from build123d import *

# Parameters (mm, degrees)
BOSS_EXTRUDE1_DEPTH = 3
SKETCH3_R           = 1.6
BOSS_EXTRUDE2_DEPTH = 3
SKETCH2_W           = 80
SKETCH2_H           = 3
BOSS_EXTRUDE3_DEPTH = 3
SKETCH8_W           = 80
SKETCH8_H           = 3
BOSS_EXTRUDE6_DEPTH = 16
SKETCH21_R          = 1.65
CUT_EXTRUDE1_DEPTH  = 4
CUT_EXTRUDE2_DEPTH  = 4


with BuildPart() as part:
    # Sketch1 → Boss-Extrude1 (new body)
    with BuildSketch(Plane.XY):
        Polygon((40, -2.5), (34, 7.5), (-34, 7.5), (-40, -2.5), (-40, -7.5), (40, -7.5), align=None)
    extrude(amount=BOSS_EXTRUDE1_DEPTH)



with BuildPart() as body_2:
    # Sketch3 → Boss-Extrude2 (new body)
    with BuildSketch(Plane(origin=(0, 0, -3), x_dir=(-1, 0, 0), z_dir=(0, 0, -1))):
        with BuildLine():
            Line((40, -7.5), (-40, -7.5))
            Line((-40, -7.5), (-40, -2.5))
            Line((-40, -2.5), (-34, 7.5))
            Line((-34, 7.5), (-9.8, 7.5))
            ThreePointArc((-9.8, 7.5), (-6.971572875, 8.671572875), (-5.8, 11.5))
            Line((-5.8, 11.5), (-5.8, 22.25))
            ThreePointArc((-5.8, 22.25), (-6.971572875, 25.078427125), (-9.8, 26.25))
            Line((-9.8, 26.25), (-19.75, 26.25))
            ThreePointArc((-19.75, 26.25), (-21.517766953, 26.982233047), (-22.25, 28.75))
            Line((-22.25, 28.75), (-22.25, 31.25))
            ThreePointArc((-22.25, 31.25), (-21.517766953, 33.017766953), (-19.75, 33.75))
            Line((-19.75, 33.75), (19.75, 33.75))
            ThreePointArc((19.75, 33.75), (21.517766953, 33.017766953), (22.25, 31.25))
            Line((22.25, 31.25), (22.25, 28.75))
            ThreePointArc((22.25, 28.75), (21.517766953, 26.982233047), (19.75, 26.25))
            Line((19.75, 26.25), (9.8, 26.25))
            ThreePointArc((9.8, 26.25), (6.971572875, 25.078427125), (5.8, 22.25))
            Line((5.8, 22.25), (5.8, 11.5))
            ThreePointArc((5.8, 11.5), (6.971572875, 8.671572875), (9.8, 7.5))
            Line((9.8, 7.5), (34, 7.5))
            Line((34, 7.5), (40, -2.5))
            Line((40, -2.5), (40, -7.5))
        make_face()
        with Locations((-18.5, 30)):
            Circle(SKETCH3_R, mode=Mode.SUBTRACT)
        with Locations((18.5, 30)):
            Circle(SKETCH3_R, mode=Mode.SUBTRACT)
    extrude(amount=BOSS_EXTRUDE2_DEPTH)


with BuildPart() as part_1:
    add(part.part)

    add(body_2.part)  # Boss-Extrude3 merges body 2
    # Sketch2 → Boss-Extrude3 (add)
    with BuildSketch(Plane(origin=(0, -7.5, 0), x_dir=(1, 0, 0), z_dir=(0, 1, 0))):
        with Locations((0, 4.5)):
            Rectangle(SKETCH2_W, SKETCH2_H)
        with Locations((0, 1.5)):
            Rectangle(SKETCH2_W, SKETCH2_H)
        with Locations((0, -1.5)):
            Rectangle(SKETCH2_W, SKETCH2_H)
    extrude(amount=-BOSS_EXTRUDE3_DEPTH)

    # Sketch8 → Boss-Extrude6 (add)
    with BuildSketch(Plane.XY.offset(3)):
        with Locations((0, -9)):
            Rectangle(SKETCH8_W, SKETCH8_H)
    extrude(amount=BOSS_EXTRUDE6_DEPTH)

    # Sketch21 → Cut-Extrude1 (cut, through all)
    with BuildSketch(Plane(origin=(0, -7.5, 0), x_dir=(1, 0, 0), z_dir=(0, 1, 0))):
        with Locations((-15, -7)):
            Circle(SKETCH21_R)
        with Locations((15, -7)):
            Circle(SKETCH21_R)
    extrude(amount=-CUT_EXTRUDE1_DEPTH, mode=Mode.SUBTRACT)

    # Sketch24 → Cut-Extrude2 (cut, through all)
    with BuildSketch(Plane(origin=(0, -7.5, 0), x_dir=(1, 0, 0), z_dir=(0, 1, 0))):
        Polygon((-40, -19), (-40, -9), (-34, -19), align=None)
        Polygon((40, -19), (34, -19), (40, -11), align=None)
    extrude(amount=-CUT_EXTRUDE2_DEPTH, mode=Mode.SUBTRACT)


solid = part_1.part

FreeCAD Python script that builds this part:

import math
import FreeCAD as App
import Part
import Sketcher
Q = App.Units.Quantity

doc = App.newDocument("Part")
params = doc.addObject("Spreadsheet::Sheet", "Params")
for row, (alias, value) in enumerate([
    ("sketch1_width", "68 mm"),
    ("sketch1_width2", "80 mm"),
    ("sketch1_height", "5 mm"),
    ("pad1_length", "3 mm"),
    ("sketch2_radius", "4 mm"),
    ("sketch2_diameter", "3.2 mm"),
    ("sketch2_radius2", "2.5 mm"),
    ("sketch2_width", "80 mm"),
    ("sketch2_height", "5 mm"),
    ("pad2_length", "3 mm"),
    ("sketch3_width", "80 mm"),
    ("sketch3_height", "9 mm"),
    ("pad3_length", "3 mm"),
    ("sketch4_width", "80 mm"),
    ("sketch4_height", "3 mm"),
    ("pad4_length", "16 mm"),
    ("sketch5_diameter", "3.3 mm"),
    ("sketch6_width", "6 mm"),
    ("sketch6_height", "10 mm"),
    ("sketch6_height2", "8 mm"),
], start=1):
    params.set(f"A{row}", alias)
    params.set(f"B{row}", "=" + value)
    params.setAlias(f"B{row}", alias)

body = doc.addObject("PartDesign::Body", "Body")

sketch1 = body.newObject("Sketcher::SketchObject", "Sketch")
sketch1.AttachmentSupport = (doc.getObject("XY_Plane"), [""])
sketch1.MapMode = "FlatFace"
sketch1.addGeometry(Part.LineSegment(App.Vector(40, -2, 0), App.Vector(34, 8, 0)), False)
sketch1.addGeometry(Part.LineSegment(App.Vector(34, 8, 0), App.Vector(-34, 8, 0)), False)
sketch1.addGeometry(Part.LineSegment(App.Vector(-34, 8, 0), App.Vector(-40, -2, 0)), False)
sketch1.addGeometry(Part.LineSegment(App.Vector(-40, -2, 0), App.Vector(-40, -8, 0)), False)
sketch1.addGeometry(Part.LineSegment(App.Vector(-40, -8, 0), App.Vector(40, -8, 0)), False)
sketch1.addGeometry(Part.LineSegment(App.Vector(40, -8, 0), App.Vector(40, -2, 0)), False)
sketch1.addConstraint(Sketcher.Constraint("Coincident", 0, 2, 1, 1))
sketch1.addConstraint(Sketcher.Constraint("Coincident", 1, 2, 2, 1))
sketch1.addConstraint(Sketcher.Constraint("Coincident", 2, 2, 3, 1))
sketch1.addConstraint(Sketcher.Constraint("Coincident", 3, 2, 4, 1))
sketch1.addConstraint(Sketcher.Constraint("Coincident", 4, 2, 5, 1))
sketch1.addConstraint(Sketcher.Constraint("Coincident", 5, 2, 0, 1))
sketch1.addConstraint(Sketcher.Constraint("Horizontal", 1))
sketch1.addConstraint(Sketcher.Constraint("Vertical", 3))
sketch1.addConstraint(Sketcher.Constraint("Horizontal", 4))
sketch1.addConstraint(Sketcher.Constraint("Vertical", 5))
sketch1.addConstraint(Sketcher.Constraint("Symmetric", 2, 2, 5, 2, -2))
sketch1.addConstraint(Sketcher.Constraint("Equal", 0, 2))
sketch1.addConstraint(Sketcher.Constraint("DistanceX", 1, 2, 1, 1, Q("68 mm")))
sketch1.addConstraint(Sketcher.Constraint("DistanceX", 4, 1, 4, 2, Q("80 mm")))
sketch1.addConstraint(Sketcher.Constraint("DistanceY", 3, 2, 3, 1, Q("5 mm")))
sketch1.addConstraint(Sketcher.Constraint("DistanceY", 2, 2, 1, 2, Q("10 mm")))
sketch1.addConstraint(Sketcher.Constraint("DistanceY", -1, 1, 0, 2, Q("7.5 mm")))
sketch1.setExpression("Constraints[12]", "Params.sketch1_width")
sketch1.setExpression("Constraints[13]", "Params.sketch1_width2")
sketch1.setExpression("Constraints[14]", "Params.sketch1_height")
pad1 = body.newObject("PartDesign::Pad", "Pad")
pad1.Profile = sketch1
pad1.setExpression("Length", "Params.pad1_length")
body2 = doc.addObject("PartDesign::Body", "Body001")

sketch2 = body2.newObject("Sketcher::SketchObject", "Sketch001")
sketch2.AttachmentSupport = (doc.getObject("XY_Plane001"), [""])
sketch2.MapMode = "FlatFace"
sketch2.AttachmentOffset = App.Placement(App.Vector(0, 0, -3), App.Rotation())
sketch2.addGeometry(Part.LineSegment(App.Vector(40, -7.5, 0), App.Vector(-40, -7.5, 0)), False)
sketch2.addGeometry(Part.LineSegment(App.Vector(-40, -7.5, 0), App.Vector(-40, -2.5, 0)), False)
sketch2.addGeometry(Part.LineSegment(App.Vector(-40, -2.5, 0), App.Vector(-34, 7.5, 0)), False)
sketch2.addGeometry(Part.LineSegment(App.Vector(-34, 7.5, 0), App.Vector(-9.8, 7.5, 0)), False)
sketch2.addGeometry(Part.ArcOfCircle(Part.Circle(App.Vector(-9.8, 11.5, 0), App.Vector(0, 0, 1), 4), math.radians(-90), math.radians(0)), False)
sketch2.addGeometry(Part.LineSegment(App.Vector(-5.8, 11.5, 0), App.Vector(-5.8, 22.2, 0)), False)
sketch2.addGeometry(Part.ArcOfCircle(Part.Circle(App.Vector(-9.8, 22.3, 0), App.Vector(0, 0, 1), 4), math.radians(0), math.radians(90)), False)
sketch2.addGeometry(Part.LineSegment(App.Vector(-9.8, 26.2, 0), App.Vector(-19.8, 26.2, 0)), False)
sketch2.addGeometry(Part.ArcOfCircle(Part.Circle(App.Vector(-19.8, 28.8, 0), App.Vector(0, 0, 1), 2.5), math.radians(180), math.radians(270)), False)
sketch2.addGeometry(Part.LineSegment(App.Vector(-22.2, 28.8, 0), App.Vector(-22.2, 31.2, 0)), False)
sketch2.addGeometry(Part.ArcOfCircle(Part.Circle(App.Vector(-19.8, 31.2, 0), App.Vector(0, 0, 1), 2.5), math.radians(90), math.radians(180)), False)
sketch2.addGeometry(Part.LineSegment(App.Vector(-19.8, 33.8, 0), App.Vector(19.8, 33.8, 0)), False)
sketch2.addGeometry(Part.ArcOfCircle(Part.Circle(App.Vector(19.8, 31.2, 0), App.Vector(0, 0, 1), 2.5), math.radians(0), math.radians(90)), False)
sketch2.addGeometry(Part.LineSegment(App.Vector(22.2, 31.2, 0), App.Vector(22.2, 28.8, 0)), False)
sketch2.addGeometry(Part.ArcOfCircle(Part.Circle(App.Vector(19.8, 28.8, 0), App.Vector(0, 0, 1), 2.5), math.radians(-90), math.radians(0)), False)
sketch2.addGeometry(Part.LineSegment(App.Vector(19.8, 26.2, 0), App.Vector(9.8, 26.2, 0)), False)
sketch2.addGeometry(Part.ArcOfCircle(Part.Circle(App.Vector(9.8, 22.3, 0), App.Vector(0, 0, 1), 4), math.radians(90), math.radians(180)), False)
sketch2.addGeometry(Part.LineSegment(App.Vector(5.8, 22.2, 0), App.Vector(5.8, 11.5, 0)), False)
sketch2.addGeometry(Part.ArcOfCircle(Part.Circle(App.Vector(9.8, 11.5, 0), App.Vector(0, 0, 1), 4), math.radians(180), math.radians(270)), False)
sketch2.addGeometry(Part.LineSegment(App.Vector(9.8, 7.5, 0), App.Vector(34, 7.5, 0)), False)
sketch2.addGeometry(Part.LineSegment(App.Vector(34, 7.5, 0), App.Vector(40, -2.5, 0)), False)
sketch2.addGeometry(Part.LineSegment(App.Vector(40, -2.5, 0), App.Vector(40, -7.5, 0)), False)
sketch2.addGeometry(Part.Circle(App.Vector(-18.5, 30, 0), App.Vector(0, 0, 1), 1.6), False)
sketch2.addGeometry(Part.Circle(App.Vector(18.5, 30, 0), App.Vector(0, 0, 1), 1.6), False)
sketch2.addConstraint(Sketcher.Constraint("Coincident", 0, 2, 1, 1))
sketch2.addConstraint(Sketcher.Constraint("Coincident", 1, 2, 2, 1))
sketch2.addConstraint(Sketcher.Constraint("Coincident", 2, 2, 3, 1))
sketch2.addConstraint(Sketcher.Constraint("Tangent", 3, 2, 4, 1))
sketch2.addConstraint(Sketcher.Constraint("Tangent", 4, 2, 5, 1))
sketch2.addConstraint(Sketcher.Constraint("Tangent", 5, 2, 6, 1))
sketch2.addConstraint(Sketcher.Constraint("Tangent", 6, 2, 7, 1))
sketch2.addConstraint(Sketcher.Constraint("Tangent", 7, 2, 8, 2))
sketch2.addConstraint(Sketcher.Constraint("Tangent", 8, 1, 9, 1))
sketch2.addConstraint(Sketcher.Constraint("Tangent", 9, 2, 10, 2))
sketch2.addConstraint(Sketcher.Constraint("Tangent", 10, 1, 11, 1))
sketch2.addConstraint(Sketcher.Constraint("Tangent", 11, 2, 12, 2))
sketch2.addConstraint(Sketcher.Constraint("Tangent", 12, 1, 13, 1))
sketch2.addConstraint(Sketcher.Constraint("Tangent", 13, 2, 14, 2))
sketch2.addConstraint(Sketcher.Constraint("Tangent", 14, 1, 15, 1))
sketch2.addConstraint(Sketcher.Constraint("Tangent", 15, 2, 16, 1))
sketch2.addConstraint(Sketcher.Constraint("Tangent", 16, 2, 17, 1))
sketch2.addConstraint(Sketcher.Constraint("Tangent", 17, 2, 18, 1))
sketch2.addConstraint(Sketcher.Constraint("Tangent", 18, 2, 19, 1))
sketch2.addConstraint(Sketcher.Constraint("Coincident", 19, 2, 20, 1))
sketch2.addConstraint(Sketcher.Constraint("Coincident", 20, 2, 21, 1))
sketch2.addConstraint(Sketcher.Constraint("Coincident", 21, 2, 0, 1))
sketch2.addConstraint(Sketcher.Constraint("Horizontal", 0))
sketch2.addConstraint(Sketcher.Constraint("Vertical", 1))
sketch2.addConstraint(Sketcher.Constraint("Horizontal", 3))
sketch2.addConstraint(Sketcher.Constraint("Vertical", 5))
sketch2.addConstraint(Sketcher.Constraint("Horizontal", 7))
sketch2.addConstraint(Sketcher.Constraint("Vertical", 9))
sketch2.addConstraint(Sketcher.Constraint("Horizontal", 11))
sketch2.addConstraint(Sketcher.Constraint("Vertical", 13))
sketch2.addConstraint(Sketcher.Constraint("Horizontal", 15))
sketch2.addConstraint(Sketcher.Constraint("Vertical", 17))
sketch2.addConstraint(Sketcher.Constraint("Horizontal", 19))
sketch2.addConstraint(Sketcher.Constraint("Vertical", 21))
sketch2.addConstraint(Sketcher.Constraint("Equal", 4, 6))
sketch2.addConstraint(Sketcher.Constraint("Equal", 8, 10))
sketch2.addConstraint(Sketcher.Constraint("Equal", 10, 12))
sketch2.addConstraint(Sketcher.Constraint("Equal", 12, 14))
sketch2.addConstraint(Sketcher.Constraint("Equal", 6, 16))
sketch2.addConstraint(Sketcher.Constraint("Equal", 16, 18))
sketch2.addConstraint(Sketcher.Constraint("Equal", 22, 23))
sketch2.addConstraint(Sketcher.Constraint("Symmetric", 8, 3, 14, 3, -2))
sketch2.addConstraint(Sketcher.Constraint("Symmetric", 4, 3, 18, 3, -2))
sketch2.addConstraint(Sketcher.Constraint("Symmetric", 22, 3, 23, 3, -2))
sketch2.addConstraint(Sketcher.Constraint("Symmetric", 1, 2, 20, 2, -2))
sketch2.addConstraint(Sketcher.Constraint("Equal", 3, 19))
sketch2.addConstraint(Sketcher.Constraint("Radius", 4, Q("4 mm")))
sketch2.addConstraint(Sketcher.Constraint("Diameter", 22, Q("3.2 mm")))
sketch2.addConstraint(Sketcher.Constraint("Radius", 8, Q("2.5 mm")))
sketch2.addConstraint(Sketcher.Constraint("DistanceX", 0, 2, 0, 1, Q("80 mm")))
sketch2.addConstraint(Sketcher.Constraint("DistanceY", 1, 1, 1, 2, Q("5 mm")))
sketch2.addConstraint(Sketcher.Constraint("DistanceX", 3, 1, 3, 2, Q("24.2 mm")))
sketch2.addConstraint(Sketcher.Constraint("DistanceX", 11, 1, 11, 2, Q("39.5 mm")))
sketch2.addConstraint(Sketcher.Constraint("DistanceY", 9, 1, 9, 2, Q("2.5 mm")))
sketch2.addConstraint(Sketcher.Constraint("DistanceY", -1, 1, 22, 3, Q("30 mm")))
sketch2.addConstraint(Sketcher.Constraint("DistanceX", 2, 2, -1, 1, Q("34 mm")))
sketch2.addConstraint(Sketcher.Constraint("DistanceY", 0, 2, 4, 3, Q("19 mm")))
sketch2.addConstraint(Sketcher.Constraint("DistanceY", 5, 1, 5, 2, Q("10.75 mm")))
sketch2.addConstraint(Sketcher.Constraint("DistanceY", -1, 1, 4, 3, Q("11.5 mm")))
sketch2.addConstraint(Sketcher.Constraint("DistanceX", 22, 3, -1, 1, Q("18.5 mm")))
sketch2.setExpression("Constraints[46]", "Params.sketch2_radius")
sketch2.setExpression("Constraints[47]", "Params.sketch2_diameter")
sketch2.setExpression("Constraints[48]", "Params.sketch2_radius2")
sketch2.setExpression("Constraints[49]", "Params.sketch2_width")
sketch2.setExpression("Constraints[50]", "Params.sketch2_height")
pad2 = body2.newObject("PartDesign::Pad", "Pad001")
pad2.Profile = sketch2
pad2.setExpression("Length", "Params.pad2_length")
pad2.Reversed = True
body.AllowCompound = True
doc.recompute()

boolean = body.newObject("PartDesign::Boolean", "Boolean")
boolean.Type = "Fuse"
boolean.addObjects([body2])

sketch3 = body.newObject("Sketcher::SketchObject", "Sketch002")
sketch3.AttachmentSupport = (doc.getObject("XZ_Plane"), [""])
sketch3.MapMode = "FlatFace"
sketch3.AttachmentOffset = App.Placement(App.Vector(0, 0, 7.5), App.Rotation())
sketch3.addGeometry(Part.LineSegment(App.Vector(-40, -6, 0), App.Vector(-40, 3, 0)), False)
sketch3.addGeometry(Part.LineSegment(App.Vector(-40, 3, 0), App.Vector(40, 3, 0)), False)
sketch3.addGeometry(Part.LineSegment(App.Vector(40, 3, 0), App.Vector(40, -6, 0)), False)
sketch3.addGeometry(Part.LineSegment(App.Vector(40, -6, 0), App.Vector(-40, -6, 0)), False)
sketch3.addConstraint(Sketcher.Constraint("Coincident", 0, 2, 1, 1))
sketch3.addConstraint(Sketcher.Constraint("Coincident", 1, 2, 2, 1))
sketch3.addConstraint(Sketcher.Constraint("Coincident", 2, 2, 3, 1))
sketch3.addConstraint(Sketcher.Constraint("Coincident", 3, 2, 0, 1))
sketch3.addConstraint(Sketcher.Constraint("Vertical", 0))
sketch3.addConstraint(Sketcher.Constraint("Horizontal", 1))
sketch3.addConstraint(Sketcher.Constraint("Vertical", 2))
sketch3.addConstraint(Sketcher.Constraint("Horizontal", 3))
sketch3.addConstraint(Sketcher.Constraint("DistanceX", 1, 1, 1, 2, Q("80 mm")))
sketch3.addConstraint(Sketcher.Constraint("DistanceY", 0, 1, 0, 2, Q("9 mm")))
sketch3.addConstraint(Sketcher.Constraint("DistanceX", 0, 2, -1, 1, Q("40 mm")))
sketch3.addConstraint(Sketcher.Constraint("DistanceY", -1, 1, 0, 2, Q("3 mm")))
sketch3.setExpression("Constraints[8]", "Params.sketch3_width")
sketch3.setExpression("Constraints[9]", "Params.sketch3_height")
pad3 = body.newObject("PartDesign::Pad", "Pad002")
pad3.Profile = sketch3
pad3.setExpression("Length", "Params.pad3_length")

sketch4 = body.newObject("Sketcher::SketchObject", "Sketch003")
sketch4.AttachmentSupport = (doc.getObject("XY_Plane"), [""])
sketch4.MapMode = "FlatFace"
sketch4.AttachmentOffset = App.Placement(App.Vector(0, 0, 3), App.Rotation())
sketch4.addGeometry(Part.LineSegment(App.Vector(-40, -7.5, 0), App.Vector(-40, -10.5, 0)), False)
sketch4.addGeometry(Part.LineSegment(App.Vector(-40, -10.5, 0), App.Vector(40, -10.5, 0)), False)
sketch4.addGeometry(Part.LineSegment(App.Vector(40, -10.5, 0), App.Vector(40, -7.5, 0)), False)
sketch4.addGeometry(Part.LineSegment(App.Vector(40, -7.5, 0), App.Vector(-40, -7.5, 0)), False)
sketch4.addConstraint(Sketcher.Constraint("Coincident", 0, 2, 1, 1))
sketch4.addConstraint(Sketcher.Constraint("Coincident", 1, 2, 2, 1))
sketch4.addConstraint(Sketcher.Constraint("Coincident", 2, 2, 3, 1))
sketch4.addConstraint(Sketcher.Constraint("Coincident", 3, 2, 0, 1))
sketch4.addConstraint(Sketcher.Constraint("Vertical", 0))
sketch4.addConstraint(Sketcher.Constraint("Horizontal", 1))
sketch4.addConstraint(Sketcher.Constraint("Vertical", 2))
sketch4.addConstraint(Sketcher.Constraint("Horizontal", 3))
sketch4.addConstraint(Sketcher.Constraint("DistanceX", 1, 1, 1, 2, Q("80 mm")))
sketch4.addConstraint(Sketcher.Constraint("DistanceY", 0, 2, 0, 1, Q("3 mm")))
sketch4.addConstraint(Sketcher.Constraint("DistanceX", 0, 2, -1, 1, Q("40 mm")))
sketch4.addConstraint(Sketcher.Constraint("DistanceY", 0, 2, -1, 1, Q("10.5 mm")))
sketch4.setExpression("Constraints[8]", "Params.sketch4_width")
sketch4.setExpression("Constraints[9]", "Params.sketch4_height")
pad4 = body.newObject("PartDesign::Pad", "Pad003")
pad4.Profile = sketch4
pad4.setExpression("Length", "Params.pad4_length")

sketch5 = body.newObject("Sketcher::SketchObject", "Sketch004")
sketch5.AttachmentSupport = (doc.getObject("XZ_Plane"), [""])
sketch5.MapMode = "FlatFace"
sketch5.AttachmentOffset = App.Placement(App.Vector(0, 0, 7.5), App.Rotation())
sketch5.addGeometry(Part.Circle(App.Vector(-15, 7, 0), App.Vector(0, 0, 1), 1.6), False)
sketch5.addGeometry(Part.Circle(App.Vector(15, 7, 0), App.Vector(0, 0, 1), 1.6), False)
sketch5.addConstraint(Sketcher.Constraint("Equal", 0, 1))
sketch5.addConstraint(Sketcher.Constraint("Symmetric", 0, 3, 1, 3, -2))
sketch5.addConstraint(Sketcher.Constraint("Diameter", 0, Q("3.3 mm")))
sketch5.addConstraint(Sketcher.Constraint("DistanceX", 0, 3, -1, 1, Q("15 mm")))
sketch5.addConstraint(Sketcher.Constraint("DistanceY", -1, 1, 0, 3, Q("7 mm")))
sketch5.setExpression("Constraints[2]", "Params.sketch5_diameter")
pocket1 = body.newObject("PartDesign::Pocket", "Pocket")
pocket1.Profile = sketch5
pocket1.Type = "ThroughAll"
pocket1.Reversed = True

sketch6 = body.newObject("Sketcher::SketchObject", "Sketch005")
sketch6.AttachmentSupport = (doc.getObject("XZ_Plane"), [""])
sketch6.MapMode = "FlatFace"
sketch6.AttachmentOffset = App.Placement(App.Vector(0, 0, 7.5), App.Rotation())
sketch6.addGeometry(Part.LineSegment(App.Vector(-40, 9, 0), App.Vector(-40, 19, 0)), False)
sketch6.addGeometry(Part.LineSegment(App.Vector(-40, 19, 0), App.Vector(-34, 19, 0)), False)
sketch6.addGeometry(Part.LineSegment(App.Vector(-34, 19, 0), App.Vector(-40, 9, 0)), False)
sketch6.addGeometry(Part.LineSegment(App.Vector(34, 19, 0), App.Vector(40, 19, 0)), False)
sketch6.addGeometry(Part.LineSegment(App.Vector(40, 19, 0), App.Vector(40, 11, 0)), False)
sketch6.addGeometry(Part.LineSegment(App.Vector(40, 11, 0), App.Vector(34, 19, 0)), False)
sketch6.addConstraint(Sketcher.Constraint("Coincident", 0, 2, 1, 1))
sketch6.addConstraint(Sketcher.Constraint("Coincident", 1, 2, 2, 1))
sketch6.addConstraint(Sketcher.Constraint("Coincident", 2, 2, 0, 1))
sketch6.addConstraint(Sketcher.Constraint("Coincident", 3, 2, 4, 1))
sketch6.addConstraint(Sketcher.Constraint("Coincident", 4, 2, 5, 1))
sketch6.addConstraint(Sketcher.Constraint("Coincident", 5, 2, 3, 1))
sketch6.addConstraint(Sketcher.Constraint("Vertical", 0))
sketch6.addConstraint(Sketcher.Constraint("Horizontal", 1))
sketch6.addConstraint(Sketcher.Constraint("Horizontal", 3))
sketch6.addConstraint(Sketcher.Constraint("Vertical", 4))
sketch6.addConstraint(Sketcher.Constraint("Symmetric", 0, 2, 3, 2, -2))
sketch6.addConstraint(Sketcher.Constraint("Equal", 1, 3))
sketch6.addConstraint(Sketcher.Constraint("DistanceX", 1, 1, 1, 2, Q("6 mm")))
sketch6.addConstraint(Sketcher.Constraint("DistanceY", 0, 1, 0, 2, Q("10 mm")))
sketch6.addConstraint(Sketcher.Constraint("DistanceY", 4, 2, 4, 1, Q("8 mm")))
sketch6.addConstraint(Sketcher.Constraint("DistanceX", 0, 2, -1, 1, Q("40 mm")))
sketch6.addConstraint(Sketcher.Constraint("DistanceY", -1, 1, 0, 2, Q("19 mm")))
sketch6.setExpression("Constraints[12]", "Params.sketch6_width")
sketch6.setExpression("Constraints[13]", "Params.sketch6_height")
sketch6.setExpression("Constraints[14]", "Params.sketch6_height2")
pocket2 = body.newObject("PartDesign::Pocket", "Pocket001")
pocket2.Profile = sketch6
pocket2.Type = "ThroughAll"
pocket2.Reversed = True

doc.recompute()
